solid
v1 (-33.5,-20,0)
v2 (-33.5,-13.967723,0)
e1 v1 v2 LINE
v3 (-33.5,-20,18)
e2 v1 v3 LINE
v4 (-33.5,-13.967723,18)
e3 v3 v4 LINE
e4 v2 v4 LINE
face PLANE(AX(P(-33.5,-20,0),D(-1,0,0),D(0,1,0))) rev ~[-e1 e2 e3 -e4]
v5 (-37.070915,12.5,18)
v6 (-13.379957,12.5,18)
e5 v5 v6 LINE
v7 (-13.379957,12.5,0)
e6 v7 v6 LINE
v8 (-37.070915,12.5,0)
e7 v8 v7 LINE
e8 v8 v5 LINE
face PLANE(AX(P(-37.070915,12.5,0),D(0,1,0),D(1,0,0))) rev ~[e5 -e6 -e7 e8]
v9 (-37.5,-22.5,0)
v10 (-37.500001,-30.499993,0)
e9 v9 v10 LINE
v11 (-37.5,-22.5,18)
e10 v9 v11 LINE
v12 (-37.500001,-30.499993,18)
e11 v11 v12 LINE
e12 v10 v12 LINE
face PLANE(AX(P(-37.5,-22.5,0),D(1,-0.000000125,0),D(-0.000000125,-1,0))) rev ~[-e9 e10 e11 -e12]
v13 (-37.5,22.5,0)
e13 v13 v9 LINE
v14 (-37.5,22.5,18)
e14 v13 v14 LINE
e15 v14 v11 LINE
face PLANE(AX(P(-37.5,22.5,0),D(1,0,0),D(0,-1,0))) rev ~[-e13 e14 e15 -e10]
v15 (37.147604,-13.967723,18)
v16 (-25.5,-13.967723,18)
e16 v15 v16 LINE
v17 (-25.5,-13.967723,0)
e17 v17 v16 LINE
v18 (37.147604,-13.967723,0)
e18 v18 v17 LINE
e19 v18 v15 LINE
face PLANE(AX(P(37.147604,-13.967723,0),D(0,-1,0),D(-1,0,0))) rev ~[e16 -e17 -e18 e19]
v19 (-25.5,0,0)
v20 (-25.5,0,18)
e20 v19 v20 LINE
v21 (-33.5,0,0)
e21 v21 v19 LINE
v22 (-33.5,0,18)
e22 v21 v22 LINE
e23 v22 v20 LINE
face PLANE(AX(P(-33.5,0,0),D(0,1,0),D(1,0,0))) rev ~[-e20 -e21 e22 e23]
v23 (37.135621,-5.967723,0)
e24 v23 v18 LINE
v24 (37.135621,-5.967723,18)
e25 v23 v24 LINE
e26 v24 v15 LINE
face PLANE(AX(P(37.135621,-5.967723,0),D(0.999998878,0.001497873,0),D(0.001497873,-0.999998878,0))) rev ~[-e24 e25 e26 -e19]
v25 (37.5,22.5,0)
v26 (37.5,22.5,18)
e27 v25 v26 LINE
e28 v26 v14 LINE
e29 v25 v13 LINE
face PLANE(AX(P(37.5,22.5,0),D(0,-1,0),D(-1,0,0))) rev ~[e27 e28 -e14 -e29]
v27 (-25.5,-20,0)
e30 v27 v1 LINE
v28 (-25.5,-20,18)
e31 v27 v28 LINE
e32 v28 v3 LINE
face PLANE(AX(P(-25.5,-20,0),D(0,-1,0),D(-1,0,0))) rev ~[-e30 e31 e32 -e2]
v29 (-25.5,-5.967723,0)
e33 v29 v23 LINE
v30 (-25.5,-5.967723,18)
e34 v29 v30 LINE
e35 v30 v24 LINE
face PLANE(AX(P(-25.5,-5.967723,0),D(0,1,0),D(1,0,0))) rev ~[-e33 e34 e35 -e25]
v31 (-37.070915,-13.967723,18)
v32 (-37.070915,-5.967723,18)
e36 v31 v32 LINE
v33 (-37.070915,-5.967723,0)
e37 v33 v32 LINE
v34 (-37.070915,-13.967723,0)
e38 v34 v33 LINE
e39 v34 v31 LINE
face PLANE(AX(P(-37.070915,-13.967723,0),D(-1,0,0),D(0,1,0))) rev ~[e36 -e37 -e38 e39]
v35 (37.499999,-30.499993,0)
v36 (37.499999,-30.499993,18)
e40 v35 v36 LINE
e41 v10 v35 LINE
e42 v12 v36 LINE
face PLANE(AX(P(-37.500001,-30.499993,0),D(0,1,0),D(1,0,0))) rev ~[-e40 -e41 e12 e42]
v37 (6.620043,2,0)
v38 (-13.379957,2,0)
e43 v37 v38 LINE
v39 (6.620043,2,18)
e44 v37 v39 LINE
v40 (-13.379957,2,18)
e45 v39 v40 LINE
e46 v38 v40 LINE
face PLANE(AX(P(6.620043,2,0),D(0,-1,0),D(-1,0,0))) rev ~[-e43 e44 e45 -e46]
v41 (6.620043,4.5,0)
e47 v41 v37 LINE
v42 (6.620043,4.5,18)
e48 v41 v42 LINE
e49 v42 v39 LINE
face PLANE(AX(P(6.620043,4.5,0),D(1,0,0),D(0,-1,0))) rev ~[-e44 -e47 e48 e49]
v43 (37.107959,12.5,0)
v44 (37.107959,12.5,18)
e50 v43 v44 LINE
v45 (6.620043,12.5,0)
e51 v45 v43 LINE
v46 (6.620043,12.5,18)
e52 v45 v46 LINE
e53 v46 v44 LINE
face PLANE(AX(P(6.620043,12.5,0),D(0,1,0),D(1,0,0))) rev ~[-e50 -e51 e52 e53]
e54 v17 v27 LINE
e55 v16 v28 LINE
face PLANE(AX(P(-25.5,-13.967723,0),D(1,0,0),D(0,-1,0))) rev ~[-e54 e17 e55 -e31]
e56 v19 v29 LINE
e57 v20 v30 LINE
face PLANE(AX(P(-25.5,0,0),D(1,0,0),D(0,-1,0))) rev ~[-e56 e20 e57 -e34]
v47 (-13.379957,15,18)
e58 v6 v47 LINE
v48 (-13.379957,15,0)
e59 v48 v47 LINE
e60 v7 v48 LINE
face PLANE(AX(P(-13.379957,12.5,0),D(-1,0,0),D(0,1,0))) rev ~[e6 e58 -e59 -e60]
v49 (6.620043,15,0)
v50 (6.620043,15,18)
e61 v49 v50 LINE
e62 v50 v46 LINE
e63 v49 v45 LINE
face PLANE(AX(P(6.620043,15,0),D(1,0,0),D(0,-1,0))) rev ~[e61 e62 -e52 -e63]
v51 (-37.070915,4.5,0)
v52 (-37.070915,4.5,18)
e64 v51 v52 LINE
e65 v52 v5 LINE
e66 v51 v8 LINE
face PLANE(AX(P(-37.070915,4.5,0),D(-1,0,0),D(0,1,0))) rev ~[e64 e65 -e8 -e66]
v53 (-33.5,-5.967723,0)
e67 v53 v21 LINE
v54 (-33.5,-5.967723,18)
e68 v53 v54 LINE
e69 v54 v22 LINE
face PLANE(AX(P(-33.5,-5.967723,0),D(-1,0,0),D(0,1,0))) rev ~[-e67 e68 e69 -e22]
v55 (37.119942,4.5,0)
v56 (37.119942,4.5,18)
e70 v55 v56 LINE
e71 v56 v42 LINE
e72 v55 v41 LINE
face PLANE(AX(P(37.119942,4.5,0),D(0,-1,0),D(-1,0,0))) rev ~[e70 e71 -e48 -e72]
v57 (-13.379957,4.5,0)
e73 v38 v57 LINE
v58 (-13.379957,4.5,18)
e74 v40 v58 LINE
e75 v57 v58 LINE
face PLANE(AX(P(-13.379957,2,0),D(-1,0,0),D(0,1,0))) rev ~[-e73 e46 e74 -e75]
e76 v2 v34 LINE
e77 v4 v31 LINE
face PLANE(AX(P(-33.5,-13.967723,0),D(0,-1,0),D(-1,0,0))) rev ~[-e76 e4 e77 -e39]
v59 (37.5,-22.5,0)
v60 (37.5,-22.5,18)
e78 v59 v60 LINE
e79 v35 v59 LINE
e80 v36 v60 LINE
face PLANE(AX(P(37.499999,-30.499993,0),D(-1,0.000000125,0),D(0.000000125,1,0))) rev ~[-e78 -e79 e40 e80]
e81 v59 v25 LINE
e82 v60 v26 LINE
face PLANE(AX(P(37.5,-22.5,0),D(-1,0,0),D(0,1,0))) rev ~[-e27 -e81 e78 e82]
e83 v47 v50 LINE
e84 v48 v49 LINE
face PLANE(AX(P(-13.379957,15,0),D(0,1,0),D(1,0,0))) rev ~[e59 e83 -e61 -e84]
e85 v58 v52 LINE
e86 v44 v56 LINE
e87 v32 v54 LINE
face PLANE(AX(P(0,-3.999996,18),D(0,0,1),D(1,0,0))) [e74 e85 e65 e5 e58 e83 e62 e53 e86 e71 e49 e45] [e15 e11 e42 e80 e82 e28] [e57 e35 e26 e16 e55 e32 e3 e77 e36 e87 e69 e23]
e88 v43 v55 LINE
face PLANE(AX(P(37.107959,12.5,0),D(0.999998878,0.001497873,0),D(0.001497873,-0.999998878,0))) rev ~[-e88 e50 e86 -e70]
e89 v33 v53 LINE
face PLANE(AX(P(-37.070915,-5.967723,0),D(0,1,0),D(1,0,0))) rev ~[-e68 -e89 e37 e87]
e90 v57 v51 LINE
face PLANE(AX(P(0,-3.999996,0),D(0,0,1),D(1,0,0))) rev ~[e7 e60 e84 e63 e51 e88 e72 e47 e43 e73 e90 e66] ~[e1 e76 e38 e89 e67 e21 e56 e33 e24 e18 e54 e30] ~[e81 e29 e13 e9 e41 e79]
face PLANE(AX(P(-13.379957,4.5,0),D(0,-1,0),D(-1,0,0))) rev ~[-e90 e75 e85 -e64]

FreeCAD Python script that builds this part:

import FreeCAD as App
import Part
import Sketcher
Q = App.Units.Quantity


def add_polygon(sketch, points):
    """Adds a closed chain of lines whose ends are joined by coincident constraints."""
    first, n = sketch.GeometryCount, len(points)
    for a, b in zip(points, points[1:] + points[:1]):
        sketch.addGeometry(Part.LineSegment(App.Vector(*a, 0), App.Vector(*b, 0)), False)
    for i in range(n):
        sketch.addConstraint(Sketcher.Constraint("Coincident", first + i, 2, first + (i + 1) % n, 1))

doc = App.newDocument("Part")
body = doc.addObject("PartDesign::Body", "Body")

# Sketch on XY plane
sketch1 = body.newObject("Sketcher::SketchObject", "Sketch")
sketch1.AttachmentSupport = (doc.getObject("XY_Plane"), [""])
sketch1.MapMode = "FlatFace"
add_polygon(sketch1, [(-37.5, -30.5), (37.5, -30.5), (37.5, -22.5), (37.5, 22.5), (-37.5, 22.5), (-37.5, -22.5)])  # lines 0-5
add_polygon(sketch1, [(37.1, -14), (-25.5, -14), (-25.5, -20), (-33.5, -20), (-33.5, -14), (-37.1, -14), (-37.1, -6), (-33.5, -6), (-33.5, 0), (-25.5, 0), (-25.5, -6), (37.1, -6)])  # lines 6-17
add_polygon(sketch1, [(-37.1, 12.5), (-13.4, 12.5), (-13.4, 15), (6.6, 15), (6.6, 12.5), (37.1, 12.5), (37.1, 4.5), (6.6, 4.5), (6.6, 2), (-13.4, 2), (-13.4, 4.5), (-37.1, 4.5)])  # lines 18-29
sketch1.addConstraint([
    Sketcher.Constraint("Horizontal", 0),
    Sketcher.Constraint("Vertical", 1),
    Sketcher.Constraint("Vertical", 2),
    Sketcher.Constraint("Horizontal", 3),
    Sketcher.Constraint("Vertical", 4),
    Sketcher.Constraint("Vertical", 5),
    Sketcher.Constraint("Horizontal", 6),
    Sketcher.Constraint("Vertical", 7),
    Sketcher.Constraint("Horizontal", 8),
    Sketcher.Constraint("Vertical", 9),
    Sketcher.Constraint("Horizontal", 10),
    Sketcher.Constraint("Vertical", 11),
    Sketcher.Constraint("Horizontal", 12),
    Sketcher.Constraint("Vertical", 13),
    Sketcher.Constraint("Horizontal", 14),
    Sketcher.Constraint("Vertical", 15),
    Sketcher.Constraint("Horizontal", 16),
    Sketcher.Constraint("Horizontal", 18),
    Sketcher.Constraint("Vertical", 19),
    Sketcher.Constraint("Horizontal", 20),
    Sketcher.Constraint("Vertical", 21),
    Sketcher.Constraint("Horizontal", 22),
    Sketcher.Constraint("Horizontal", 24),
    Sketcher.Constraint("Vertical", 25),
    Sketcher.Constraint("Horizontal", 26),
    Sketcher.Constraint("Vertical", 27),
    Sketcher.Constraint("Horizontal", 28),
    Sketcher.Constraint("Vertical", 29),
    Sketcher.Constraint("Symmetric", 1, 2, 3, 2, -1, 1),
    Sketcher.Constraint("PointOnObject", 13, 2, -1),
    Sketcher.Constraint("Parallel", 17, 23),
    Sketcher.Constraint("Horizontal", 1, 2, 4, 2),
    Sketcher.Constraint("Horizontal", 6, 2, 9, 2),
    Sketcher.Constraint("Horizontal", 12, 2, 15, 2),
    Sketcher.Constraint("Horizontal", 18, 2, 21, 2),
    Sketcher.Constraint("Horizontal", 24, 2, 27, 2),
    Sketcher.Constraint("Vertical", 9, 2, 12, 2),
    Sketcher.Constraint("Vertical", 7, 2, 14, 2),
    Sketcher.Constraint("Vertical", 21, 2, 24, 2),
    Sketcher.Constraint("Vertical", 19, 2, 26, 2),
    Sketcher.Constraint("Vertical", 11, 2, 28, 2),
    Sketcher.Constraint("Equal", 14, 11),
    Sketcher.Constraint("Equal", 21, 25),
    Sketcher.Constraint("Equal", 11, 29),
    Sketcher.Constraint("DistanceX", 0, 1, 0, 2, Q("75 mm")),
    Sketcher.Constraint("DistanceX", 8, 2, 8, 1, Q("8 mm")),
    Sketcher.Constraint("DistanceX", 20, 1, 20, 2, Q("20 mm")),
    Sketcher.Constraint("DistanceY", 2, 1, 2, 2, Q("45 mm")),
    Sketcher.Constraint("DistanceY", 19, 1, 19, 2, Q("2.5 mm")),
    Sketcher.Constraint("DistanceY", 7, 2, -1, 1, Q("20 mm")),
    Sketcher.Constraint("DistanceY", -1, 1, 19, 2, Q("15 mm")),
    Sketcher.Constraint("DistanceX", 4, 2, 6, 2, Q("12 mm")),
    Sketcher.Constraint("DistanceX", 24, 2, 24, 1, Q("30.499899 mm")),
    Sketcher.Constraint("DistanceX", 16, 1, 16, 2, Q("62.635621 mm")),
    Sketcher.Constraint("DistanceX", 18, 1, 18, 2, Q("23.690958 mm")),
    Sketcher.Constraint("DistanceX", 6, 2, 6, 1, Q("62.647604 mm")),
    Sketcher.Constraint("DistanceX", 10, 2, 10, 1, Q("3.570915 mm")),
    Sketcher.Constraint("DistanceY", 1, 1, 1, 2, Q("7.999993 mm")),
    Sketcher.Constraint("DistanceY", 7, 2, 7, 1, Q("6.032277 mm")),
])
pad1 = body.newObject("PartDesign::Pad", "Pad")
pad1.Profile = sketch1
pad1.Length = 18

doc.recompute()
